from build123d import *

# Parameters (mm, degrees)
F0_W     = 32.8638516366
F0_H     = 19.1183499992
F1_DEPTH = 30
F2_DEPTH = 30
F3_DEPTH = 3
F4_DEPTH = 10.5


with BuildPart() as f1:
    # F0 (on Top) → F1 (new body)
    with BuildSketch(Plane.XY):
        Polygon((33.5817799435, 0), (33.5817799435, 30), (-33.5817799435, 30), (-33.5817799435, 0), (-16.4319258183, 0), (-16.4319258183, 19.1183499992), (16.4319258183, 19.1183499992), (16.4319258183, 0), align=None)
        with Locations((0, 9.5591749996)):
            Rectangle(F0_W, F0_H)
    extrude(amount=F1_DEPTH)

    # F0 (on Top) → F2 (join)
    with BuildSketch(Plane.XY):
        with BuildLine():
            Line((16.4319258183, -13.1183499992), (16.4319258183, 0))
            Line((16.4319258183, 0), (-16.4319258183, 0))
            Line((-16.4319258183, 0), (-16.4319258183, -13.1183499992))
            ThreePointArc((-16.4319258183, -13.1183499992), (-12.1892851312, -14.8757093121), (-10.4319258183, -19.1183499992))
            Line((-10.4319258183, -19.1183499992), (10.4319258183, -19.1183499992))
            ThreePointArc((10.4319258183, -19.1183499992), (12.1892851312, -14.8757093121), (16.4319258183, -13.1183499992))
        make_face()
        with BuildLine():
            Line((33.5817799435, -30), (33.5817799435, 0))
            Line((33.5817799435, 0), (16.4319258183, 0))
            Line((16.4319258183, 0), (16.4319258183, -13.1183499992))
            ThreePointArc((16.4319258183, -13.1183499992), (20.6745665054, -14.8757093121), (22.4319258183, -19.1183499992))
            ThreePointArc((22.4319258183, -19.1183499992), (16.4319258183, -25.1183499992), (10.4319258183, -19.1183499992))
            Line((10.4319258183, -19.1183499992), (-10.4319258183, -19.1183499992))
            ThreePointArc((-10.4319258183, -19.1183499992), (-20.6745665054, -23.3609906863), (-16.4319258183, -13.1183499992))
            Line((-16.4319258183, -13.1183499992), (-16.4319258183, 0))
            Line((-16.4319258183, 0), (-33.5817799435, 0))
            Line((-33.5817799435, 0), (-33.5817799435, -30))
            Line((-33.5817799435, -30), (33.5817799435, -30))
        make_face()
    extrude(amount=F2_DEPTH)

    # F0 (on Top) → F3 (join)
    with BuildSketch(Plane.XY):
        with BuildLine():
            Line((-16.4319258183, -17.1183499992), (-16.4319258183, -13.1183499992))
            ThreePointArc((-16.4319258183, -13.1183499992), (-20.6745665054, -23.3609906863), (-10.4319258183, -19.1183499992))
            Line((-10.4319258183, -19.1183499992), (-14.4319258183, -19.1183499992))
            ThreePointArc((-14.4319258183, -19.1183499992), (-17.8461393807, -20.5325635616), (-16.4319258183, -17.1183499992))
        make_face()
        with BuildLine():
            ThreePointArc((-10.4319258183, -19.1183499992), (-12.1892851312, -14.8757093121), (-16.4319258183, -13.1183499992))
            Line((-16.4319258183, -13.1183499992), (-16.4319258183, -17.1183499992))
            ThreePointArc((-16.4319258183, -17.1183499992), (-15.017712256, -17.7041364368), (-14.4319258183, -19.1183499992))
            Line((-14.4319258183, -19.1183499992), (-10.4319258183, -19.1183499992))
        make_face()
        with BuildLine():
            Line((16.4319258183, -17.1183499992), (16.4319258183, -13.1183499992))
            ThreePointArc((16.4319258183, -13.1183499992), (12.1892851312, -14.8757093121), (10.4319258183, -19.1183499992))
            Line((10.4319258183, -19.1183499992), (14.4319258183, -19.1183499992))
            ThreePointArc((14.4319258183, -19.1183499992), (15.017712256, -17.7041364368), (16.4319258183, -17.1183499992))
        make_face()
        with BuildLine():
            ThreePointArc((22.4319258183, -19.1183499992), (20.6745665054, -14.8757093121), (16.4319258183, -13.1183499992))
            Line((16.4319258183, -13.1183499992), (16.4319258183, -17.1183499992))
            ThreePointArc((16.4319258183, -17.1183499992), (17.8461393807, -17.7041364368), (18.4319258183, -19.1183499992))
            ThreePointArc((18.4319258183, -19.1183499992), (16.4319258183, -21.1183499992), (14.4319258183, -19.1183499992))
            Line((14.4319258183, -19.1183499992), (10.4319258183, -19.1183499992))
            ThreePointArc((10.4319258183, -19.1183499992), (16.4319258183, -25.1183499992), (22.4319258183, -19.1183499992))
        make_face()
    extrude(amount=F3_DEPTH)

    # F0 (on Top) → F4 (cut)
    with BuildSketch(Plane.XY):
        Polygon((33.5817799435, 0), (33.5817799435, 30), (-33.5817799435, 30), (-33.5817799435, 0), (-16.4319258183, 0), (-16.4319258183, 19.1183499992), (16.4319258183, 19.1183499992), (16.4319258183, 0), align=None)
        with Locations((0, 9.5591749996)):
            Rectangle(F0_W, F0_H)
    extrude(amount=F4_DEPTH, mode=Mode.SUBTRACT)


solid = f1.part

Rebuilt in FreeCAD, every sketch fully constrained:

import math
import FreeCAD as App
import Part
import Sketcher

doc = App.newDocument("Part")
params = doc.addObject("Spreadsheet::Sheet", "Params")
for row, (alias, value) in enumerate([
    ("sketch1_height", "30 mm"),
    ("pad1_length", "30 mm"),
    ("sketch2_radius", "6 mm"),
    ("sketch2_height", "30 mm"),
    ("pad2_length", "30 mm"),
    ("sketch3_radius", "6 mm"),
    ("sketch3_radius2", "2 mm"),
    ("pad3_length", "3 mm"),
    ("sketch4_height", "30 mm"),
    ("pocket1_length", "10.5 mm"),
], start=1):
    params.set(f"A{row}", alias)
    params.set(f"B{row}", "=" + value)
    params.setAlias(f"B{row}", alias)

body = doc.addObject("PartDesign::Body", "Body")

# Sketch on XY plane
sketch1 = body.newObject("Sketcher::SketchObject", "Sketch")
sketch1.AttachmentSupport = (doc.getObject("XY_Plane"), [""])
sketch1.MapMode = "FlatFace"
sketch1.addGeometry([
    Part.LineSegment(App.Vector(34, 0, 0), App.Vector(34, 30, 0)),
    Part.LineSegment(App.Vector(34, 30, 0), App.Vector(-34, 30, 0)),
    Part.LineSegment(App.Vector(-34, 30, 0), App.Vector(-34, 0, 0)),
    Part.LineSegment(App.Vector(-34, 0, 0), App.Vector(34, 0, 0)),
], False)
sketch1.addConstraint([
    Sketcher.Constraint("Coincident", 0, 2, 1, 1),
    Sketcher.Constraint("Coincident", 1, 2, 2, 1),
    Sketcher.Constraint("Coincident", 2, 2, 3, 1),
    Sketcher.Constraint("Coincident", 3, 2, 0, 1),
    Sketcher.Constraint("Vertical", 0),
    Sketcher.Constraint("Horizontal", 1),
    Sketcher.Constraint("Vertical", 2),
    Sketcher.Constraint("Horizontal", 3),
    Sketcher.Constraint("Symmetric", 2, 2, 3, 2, -1, 1),
    Sketcher.Constraint("DistanceY", 0, 1, 0, 2, 30.0),
    Sketcher.Constraint("DistanceX", 1, 2, 1, 1, 67.16356),
])
sketch1.setExpression("Constraints[9]", "Params.sketch1_height")
pad1 = body.newObject("PartDesign::Pad", "Pad")
pad1.Profile = sketch1
pad1.setExpression("Length", "Params.pad1_length")

# Sketch on XY plane
sketch2 = body.newObject("Sketcher::SketchObject", "Sketch001")
sketch2.AttachmentSupport = (doc.getObject("XY_Plane"), [""])
sketch2.MapMode = "FlatFace"
sketch2.addGeometry([
    Part.LineSegment(App.Vector(-34, 0, 0), App.Vector(-34, -30, 0)),  # 0
    Part.LineSegment(App.Vector(-34, -30, 0), App.Vector(34, -30, 0)),  # 1
    Part.LineSegment(App.Vector(34, -30, 0), App.Vector(34, 0, 0)),  # 2
    Part.LineSegment(App.Vector(34, 0, 0), App.Vector(-34, 0, 0)),  # 3
    Part.ArcOfCircle(Part.Circle(App.Vector(-16, -19, 0), App.Vector(0, 0, 1), 6), math.radians(0), math.radians(90)),  # 4
    Part.ArcOfCircle(Part.Circle(App.Vector(-16, -19, 0), App.Vector(0, 0, 1), 6), math.radians(90), math.radians(360)),  # 5
    Part.ArcOfCircle(Part.Circle(App.Vector(16, -19, 0), App.Vector(0, 0, 1), 6), math.radians(90), math.radians(180)),  # 6
    Part.ArcOfCircle(Part.Circle(App.Vector(16, -19, 0), App.Vector(0, 0, 1), 6), math.radians(0), math.radians(90)),  # 7
    Part.ArcOfCircle(Part.Circle(App.Vector(16, -19, 0), App.Vector(0, 0, 1), 6), math.radians(180), math.radians(360)),  # 8
], False)
sketch2.addConstraint([
    Sketcher.Constraint("Coincident", 0, 2, 1, 1),
    Sketcher.Constraint("Coincident", 1, 2, 2, 1),
    Sketcher.Constraint("Coincident", 2, 2, 3, 1),
    Sketcher.Constraint("Coincident", 3, 2, 0, 1),
    Sketcher.Constraint("Tangent", 4, 1, 5, 2),
    Sketcher.Constraint("Coincident", 5, 1, 4, 2),
    Sketcher.Constraint("Tangent", 6, 1, 7, 2),
    Sketcher.Constraint("Tangent", 7, 1, 8, 2),
    Sketcher.Constraint("Tangent", 8, 1, 6, 2),
    Sketcher.Constraint("Vertical", 0),
    Sketcher.Constraint("Horizontal", 1),
    Sketcher.Constraint("Vertical", 2),
    Sketcher.Constraint("Horizontal", 3),
    Sketcher.Constraint("Equal", 5, 6),
    Sketcher.Constraint("Symmetric", 2, 2, 3, 2, -1, 1),
    Sketcher.Constraint("Symmetric", 4, 3, 6, 3, -2),
    Sketcher.Constraint("Horizontal", 8, 3, 4, 1),
    Sketcher.Constraint("Horizontal", 4, 1, 7, 1),
    Sketcher.Constraint("Horizontal", 7, 1, 8, 1),
    Sketcher.Constraint("Vertical", 4, 3, 5, 1),
    Sketcher.Constraint("Vertical", 8, 3, 6, 1),
    Sketcher.Constraint("Radius", 4, 6.0),
    Sketcher.Constraint("DistanceY", 0, 2, 0, 1, 30.0),
    Sketcher.Constraint("DistanceX", 1, 1, 1, 2, 67.16356),
    Sketcher.Constraint("DistanceY", 4, 3, -1, 1, 19.11835),
    Sketcher.Constraint("DistanceX", 4, 3, 6, 3, 32.863852),
])
sketch2.setExpression("Constraints[21]", "Params.sketch2_radius")
sketch2.setExpression("Constraints[22]", "Params.sketch2_height")
pad2 = body.newObject("PartDesign::Pad", "Pad001")
pad2.Profile = sketch2
pad2.setExpression("Length", "Params.pad2_length")

# Sketch on XY plane
sketch3 = body.newObject("Sketcher::SketchObject", "Sketch002")
sketch3.AttachmentSupport = (doc.getObject("XY_Plane"), [""])
sketch3.MapMode = "FlatFace"
sketch3.addGeometry([
    Part.ArcOfCircle(Part.Circle(App.Vector(-16.4, -19.1, 0), App.Vector(0, 0, 1), 6), math.radians(90), math.radians(360)),  # 0
    Part.ArcOfCircle(Part.Circle(App.Vector(-16.4, -19.1, 0), App.Vector(0, 0, 1), 6), math.radians(0), math.radians(90)),  # 1
    Part.ArcOfCircle(Part.Circle(App.Vector(-16.4, -19.1, 0), App.Vector(0, 0, 1), 2), math.radians(90), math.radians(360)),  # 2
    Part.ArcOfCircle(Part.Circle(App.Vector(-16.4, -19.1, 0), App.Vector(0, 0, 1), 2), math.radians(0), math.radians(90)),  # 3
    Part.ArcOfCircle(Part.Circle(App.Vector(16.4, -19.1, 0), App.Vector(0, 0, 1), 6), math.radians(90), math.radians(180)),  # 4
    Part.ArcOfCircle(Part.Circle(App.Vector(16.4, -19.1, 0), App.Vector(0, 0, 1), 6), math.radians(180), math.radians(360)),  # 5
    Part.ArcOfCircle(Part.Circle(App.Vector(16.4, -19.1, 0), App.Vector(0, 0, 1), 6), math.radians(0), math.radians(90)),  # 6
    Part.ArcOfCircle(Part.Circle(App.Vector(16.4, -19.1, 0), App.Vector(0, 0, 1), 2), math.radians(90), math.radians(180)),  # 7
    Part.ArcOfCircle(Part.Circle(App.Vector(16.4, -19.1, 0), App.Vector(0, 0, 1), 2), math.radians(0), math.radians(90)),  # 8
    Part.ArcOfCircle(Part.Circle(App.Vector(16.4, -19.1, 0), App.Vector(0, 0, 1), 2), math.radians(180), math.radians(360)),  # 9
], False)
sketch3.addConstraint([
    Sketcher.Constraint("Tangent", 0, 1, 1, 2),
    Sketcher.Constraint("Coincident", 1, 1, 0, 2),
    Sketcher.Constraint("Tangent", 2, 1, 3, 2),
    Sketcher.Constraint("Coincident", 3, 1, 2, 2),
    Sketcher.Constraint("Tangent", 4, 2, 5, 1),
    Sketcher.Constraint("Tangent", 5, 2, 6, 1),
    Sketcher.Constraint("Tangent", 6, 2, 4, 1),
    Sketcher.Constraint("Tangent", 7, 1, 8, 2),
    Sketcher.Constraint("Tangent", 8, 1, 9, 2),
    Sketcher.Constraint("Tangent", 9, 1, 7, 2),
    Sketcher.Constraint("Coincident", 2, 3, 0, 3),
    Sketcher.Constraint("Coincident", 7, 3, 4, 3),
    Sketcher.Constraint("Equal", 1, 4),
    Sketcher.Constraint("Equal", 3, 7),
    Sketcher.Constraint("Symmetric", 0, 3, 4, 3, -2),
    Sketcher.Constraint("Horizontal", 9, 3, 1, 1),
    Sketcher.Constraint("Horizontal", 1, 1, 3, 1),
    Sketcher.Constraint("Horizontal", 3, 1, 4, 2),
    Sketcher.Constraint("Horizontal", 4, 2, 5, 2),
    Sketcher.Constraint("Horizontal", 5, 2, 8, 1),
    Sketcher.Constraint("Horizontal", 8, 1, 9, 1),
    Sketcher.Constraint("Vertical", 3, 3, 0, 1),
    Sketcher.Constraint("Vertical", 0, 1, 2, 1),
    Sketcher.Constraint("Vertical", 9, 3, 6, 2),
    Sketcher.Constraint("Vertical", 6, 2, 7, 1),
    Sketcher.Constraint("Radius", 0, 6.0),
    Sketcher.Constraint("Radius", 2, 2.0),
    Sketcher.Constraint("DistanceY", 0, 3, -1, 1, 19.11835),
    Sketcher.Constraint("DistanceX", 0, 3, 4, 3, 32.863852),
])
sketch3.setExpression("Constraints[25]", "Params.sketch3_radius")
sketch3.setExpression("Constraints[26]", "Params.sketch3_radius2")
pad3 = body.newObject("PartDesign::Pad", "Pad002")
pad3.Profile = sketch3
pad3.setExpression("Length", "Params.pad3_length")

# Sketch on XY plane
sketch4 = body.newObject("Sketcher::SketchObject", "Sketch003")
sketch4.AttachmentSupport = (doc.getObject("XY_Plane"), [""])
sketch4.MapMode = "FlatFace"
sketch4.addGeometry([
    Part.LineSegment(App.Vector(34, 0, 0), App.Vector(34, 30, 0)),
    Part.LineSegment(App.Vector(34, 30, 0), App.Vector(-34, 30, 0)),
    Part.LineSegment(App.Vector(-34, 30, 0), App.Vector(-34, 0, 0)),
    Part.LineSegment(App.Vector(-34, 0, 0), App.Vector(34, 0, 0)),
], False)
sketch4.addConstraint([
    Sketcher.Constraint("Coincident", 0, 2, 1, 1),
    Sketcher.Constraint("Coincident", 1, 2, 2, 1),
    Sketcher.Constraint("Coincident", 2, 2, 3, 1),
    Sketcher.Constraint("Coincident", 3, 2, 0, 1),
    Sketcher.Constraint("Vertical", 0),
    Sketcher.Constraint("Horizontal", 1),
    Sketcher.Constraint("Vertical", 2),
    Sketcher.Constraint("Horizontal", 3),
    Sketcher.Constraint("Symmetric", 2, 2, 3, 2, -1, 1),
    Sketcher.Constraint("DistanceY", 0, 1, 0, 2, 30.0),
    Sketcher.Constraint("DistanceX", 1, 2, 1, 1, 67.16356),
])
sketch4.setExpression("Constraints[9]", "Params.sketch4_height")
pocket1 = body.newObject("PartDesign::Pocket", "Pocket")
pocket1.Profile = sketch4
pocket1.setExpression("Length", "Params.pocket1_length")
pocket1.Reversed = True

doc.recompute()
